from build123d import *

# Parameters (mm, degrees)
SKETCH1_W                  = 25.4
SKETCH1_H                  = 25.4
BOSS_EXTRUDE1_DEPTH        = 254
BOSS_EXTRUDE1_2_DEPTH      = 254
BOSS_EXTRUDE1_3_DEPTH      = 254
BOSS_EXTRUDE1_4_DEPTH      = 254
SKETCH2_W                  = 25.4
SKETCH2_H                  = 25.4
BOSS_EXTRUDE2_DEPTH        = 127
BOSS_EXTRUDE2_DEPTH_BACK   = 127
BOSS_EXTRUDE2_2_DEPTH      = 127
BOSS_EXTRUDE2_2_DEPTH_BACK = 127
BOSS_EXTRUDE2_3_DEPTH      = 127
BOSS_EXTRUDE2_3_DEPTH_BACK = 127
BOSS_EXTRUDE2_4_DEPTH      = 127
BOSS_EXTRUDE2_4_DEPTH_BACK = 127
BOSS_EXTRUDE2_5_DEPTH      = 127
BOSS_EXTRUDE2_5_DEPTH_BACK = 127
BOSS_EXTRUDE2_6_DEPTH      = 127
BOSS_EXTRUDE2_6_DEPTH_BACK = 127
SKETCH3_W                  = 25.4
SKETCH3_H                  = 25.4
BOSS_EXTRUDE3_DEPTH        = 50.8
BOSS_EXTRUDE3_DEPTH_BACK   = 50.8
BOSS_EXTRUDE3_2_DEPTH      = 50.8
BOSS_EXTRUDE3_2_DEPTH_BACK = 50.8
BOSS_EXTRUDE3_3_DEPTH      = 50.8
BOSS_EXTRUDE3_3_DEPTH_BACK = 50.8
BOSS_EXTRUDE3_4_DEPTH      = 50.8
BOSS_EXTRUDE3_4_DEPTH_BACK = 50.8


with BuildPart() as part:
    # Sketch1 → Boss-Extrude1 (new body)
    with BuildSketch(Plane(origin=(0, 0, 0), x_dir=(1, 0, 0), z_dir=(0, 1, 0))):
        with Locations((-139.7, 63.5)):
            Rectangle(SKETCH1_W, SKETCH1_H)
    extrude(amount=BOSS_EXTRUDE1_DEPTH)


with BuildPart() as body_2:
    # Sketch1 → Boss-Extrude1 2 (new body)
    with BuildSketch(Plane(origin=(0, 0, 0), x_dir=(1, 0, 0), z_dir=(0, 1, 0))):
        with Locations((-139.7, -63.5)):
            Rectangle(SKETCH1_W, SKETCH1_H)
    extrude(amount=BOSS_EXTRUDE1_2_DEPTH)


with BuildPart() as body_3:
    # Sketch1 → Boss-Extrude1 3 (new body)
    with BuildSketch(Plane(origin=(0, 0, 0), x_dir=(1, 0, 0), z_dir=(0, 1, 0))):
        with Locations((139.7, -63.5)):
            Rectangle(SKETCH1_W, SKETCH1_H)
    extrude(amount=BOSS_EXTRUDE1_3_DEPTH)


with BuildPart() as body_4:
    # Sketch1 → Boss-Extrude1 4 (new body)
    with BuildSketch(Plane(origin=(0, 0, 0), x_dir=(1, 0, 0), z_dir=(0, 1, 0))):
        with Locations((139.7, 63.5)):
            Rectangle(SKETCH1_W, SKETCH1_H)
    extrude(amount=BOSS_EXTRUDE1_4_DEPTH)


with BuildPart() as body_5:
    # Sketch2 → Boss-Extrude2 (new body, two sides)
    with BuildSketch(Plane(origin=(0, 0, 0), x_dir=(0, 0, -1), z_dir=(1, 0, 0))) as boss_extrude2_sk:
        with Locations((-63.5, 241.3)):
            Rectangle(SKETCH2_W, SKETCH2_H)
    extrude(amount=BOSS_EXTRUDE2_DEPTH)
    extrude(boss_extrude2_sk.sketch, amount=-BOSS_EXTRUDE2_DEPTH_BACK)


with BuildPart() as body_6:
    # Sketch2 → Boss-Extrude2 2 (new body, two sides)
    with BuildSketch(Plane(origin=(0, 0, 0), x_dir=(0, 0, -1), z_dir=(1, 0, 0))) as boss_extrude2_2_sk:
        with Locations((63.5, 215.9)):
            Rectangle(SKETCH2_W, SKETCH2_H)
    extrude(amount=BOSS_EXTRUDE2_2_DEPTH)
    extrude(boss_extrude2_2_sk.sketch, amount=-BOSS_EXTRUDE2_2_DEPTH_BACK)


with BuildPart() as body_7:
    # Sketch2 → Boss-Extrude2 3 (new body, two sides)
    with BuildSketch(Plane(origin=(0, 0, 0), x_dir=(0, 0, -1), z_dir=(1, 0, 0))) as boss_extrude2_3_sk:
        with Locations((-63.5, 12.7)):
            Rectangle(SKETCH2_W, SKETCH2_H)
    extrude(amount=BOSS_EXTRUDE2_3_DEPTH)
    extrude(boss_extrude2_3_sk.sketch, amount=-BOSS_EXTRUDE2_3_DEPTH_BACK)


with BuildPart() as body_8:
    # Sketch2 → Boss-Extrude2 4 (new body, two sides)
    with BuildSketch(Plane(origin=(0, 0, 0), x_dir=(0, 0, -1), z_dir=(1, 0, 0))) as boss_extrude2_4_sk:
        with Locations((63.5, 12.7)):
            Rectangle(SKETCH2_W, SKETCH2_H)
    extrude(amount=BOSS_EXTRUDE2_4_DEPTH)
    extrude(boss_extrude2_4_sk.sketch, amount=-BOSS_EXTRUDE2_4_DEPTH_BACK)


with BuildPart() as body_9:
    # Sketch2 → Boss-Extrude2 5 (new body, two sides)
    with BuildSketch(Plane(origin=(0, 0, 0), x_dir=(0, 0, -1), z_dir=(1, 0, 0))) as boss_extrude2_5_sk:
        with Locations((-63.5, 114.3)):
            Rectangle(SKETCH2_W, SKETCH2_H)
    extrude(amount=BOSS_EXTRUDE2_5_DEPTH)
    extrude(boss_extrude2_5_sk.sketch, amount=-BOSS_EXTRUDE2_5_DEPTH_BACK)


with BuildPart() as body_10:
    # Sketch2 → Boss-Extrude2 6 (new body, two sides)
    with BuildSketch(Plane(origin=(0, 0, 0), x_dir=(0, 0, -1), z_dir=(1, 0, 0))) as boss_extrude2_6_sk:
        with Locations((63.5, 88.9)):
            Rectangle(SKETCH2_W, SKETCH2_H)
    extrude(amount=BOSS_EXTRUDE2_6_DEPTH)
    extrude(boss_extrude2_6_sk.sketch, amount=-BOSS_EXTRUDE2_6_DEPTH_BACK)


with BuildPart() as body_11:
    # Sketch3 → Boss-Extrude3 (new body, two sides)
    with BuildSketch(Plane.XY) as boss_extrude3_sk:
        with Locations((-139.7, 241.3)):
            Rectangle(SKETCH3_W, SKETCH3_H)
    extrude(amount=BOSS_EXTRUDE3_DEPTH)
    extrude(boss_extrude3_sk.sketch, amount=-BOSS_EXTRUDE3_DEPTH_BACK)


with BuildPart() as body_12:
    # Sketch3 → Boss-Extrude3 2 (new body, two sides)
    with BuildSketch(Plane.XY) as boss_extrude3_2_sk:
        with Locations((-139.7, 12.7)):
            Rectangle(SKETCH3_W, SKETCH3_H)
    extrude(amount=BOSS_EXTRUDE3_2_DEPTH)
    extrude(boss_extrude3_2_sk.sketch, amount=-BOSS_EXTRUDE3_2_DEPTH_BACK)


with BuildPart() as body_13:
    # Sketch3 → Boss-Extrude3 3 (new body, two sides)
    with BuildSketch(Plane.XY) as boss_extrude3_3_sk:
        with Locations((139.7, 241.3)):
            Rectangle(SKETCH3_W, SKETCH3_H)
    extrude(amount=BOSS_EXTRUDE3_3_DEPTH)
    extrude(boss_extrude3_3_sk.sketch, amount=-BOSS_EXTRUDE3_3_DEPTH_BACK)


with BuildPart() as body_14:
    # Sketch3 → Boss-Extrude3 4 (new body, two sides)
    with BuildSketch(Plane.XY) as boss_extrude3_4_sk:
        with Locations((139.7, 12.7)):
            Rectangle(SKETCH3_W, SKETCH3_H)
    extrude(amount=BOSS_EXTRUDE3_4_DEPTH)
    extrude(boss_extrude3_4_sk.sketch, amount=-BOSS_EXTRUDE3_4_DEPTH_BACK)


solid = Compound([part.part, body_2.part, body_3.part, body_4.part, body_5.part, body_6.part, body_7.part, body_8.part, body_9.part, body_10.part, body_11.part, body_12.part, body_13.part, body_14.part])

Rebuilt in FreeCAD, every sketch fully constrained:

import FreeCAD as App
import Part
import Sketcher
Q = App.Units.Quantity


def add_polygon(sketch, points):
    """Adds a closed chain of lines whose ends are joined by coincident constraints."""
    first, n = sketch.GeometryCount, len(points)
    for a, b in zip(points, points[1:] + points[:1]):
        sketch.addGeometry(Part.LineSegment(App.Vector(*a, 0), App.Vector(*b, 0)), False)
    for i in range(n):
        sketch.addConstraint(Sketcher.Constraint("Coincident", first + i, 2, first + (i + 1) % n, 1))

doc = App.newDocument("Part")
body = doc.addObject("PartDesign::Body", "Body")

# Sketch on XZ plane
sketch1 = body.newObject("Sketcher::SketchObject", "Sketch")
sketch1.AttachmentSupport = (doc.getObject("XZ_Plane"), [""])
sketch1.MapMode = "FlatFace"
add_polygon(sketch1, [(-152, -76), (-152, -51), (-127, -51), (-127, -76)])  # lines 0-3
sketch1.addConstraint(Sketcher.Constraint("Vertical", 0))
sketch1.addConstraint(Sketcher.Constraint("Horizontal", 1))
sketch1.addConstraint(Sketcher.Constraint("Vertical", 2))
sketch1.addConstraint(Sketcher.Constraint("Horizontal", 3))
sketch1.addConstraint(Sketcher.Constraint("Equal", 3, 0))
sketch1.addConstraint(Sketcher.Constraint("DistanceX", 1, 1, 1, 2, Q("1 in")))
sketch1.addConstraint(Sketcher.Constraint("DistanceX", 0, 2, -1, 1, Q("6 in")))
sketch1.addConstraint(Sketcher.Constraint("DistanceY", 0, 2, -1, 1, Q("2 in")))
pad1 = body.newObject("PartDesign::Pad", "Pad")
pad1.Profile = sketch1
pad1.Length = Q("10 in")
pad1.Reversed = True
body2 = doc.addObject("PartDesign::Body", "Body001")

# Sketch on XZ plane
sketch2 = body2.newObject("Sketcher::SketchObject", "Sketch001")
sketch2.AttachmentSupport = (doc.getObject("XZ_Plane001"), [""])
sketch2.MapMode = "FlatFace"
add_polygon(sketch2, [(-152, 51), (-152, 76), (-127, 76), (-127, 51)])  # lines 0-3
sketch2.addConstraint(Sketcher.Constraint("Vertical", 0))
sketch2.addConstraint(Sketcher.Constraint("Horizontal", 1))
sketch2.addConstraint(Sketcher.Constraint("Vertical", 2))
sketch2.addConstraint(Sketcher.Constraint("Horizontal", 3))
sketch2.addConstraint(Sketcher.Constraint("Equal", 3, 0))
sketch2.addConstraint(Sketcher.Constraint("DistanceX", 1, 1, 1, 2, Q("1 in")))
sketch2.addConstraint(Sketcher.Constraint("DistanceX", 0, 2, -1, 1, Q("6 in")))
sketch2.addConstraint(Sketcher.Constraint("DistanceY", -1, 1, 0, 2, Q("3 in")))
pad2 = body2.newObject("PartDesign::Pad", "Pad001")
pad2.Profile = sketch2
pad2.Length = Q("10 in")
pad2.Reversed = True
body3 = doc.addObject("PartDesign::Body", "Body002")

# Sketch on XZ plane
sketch3 = body3.newObject("Sketcher::SketchObject", "Sketch002")
sketch3.AttachmentSupport = (doc.getObject("XZ_Plane002"), [""])
sketch3.MapMode = "FlatFace"
add_polygon(sketch3, [(127, 51), (127, 76), (152, 76), (152, 51)])  # lines 0-3
sketch3.addConstraint(Sketcher.Constraint("Vertical", 0))
sketch3.addConstraint(Sketcher.Constraint("Horizontal", 1))
sketch3.addConstraint(Sketcher.Constraint("Vertical", 2))
sketch3.addConstraint(Sketcher.Constraint("Horizontal", 3))
sketch3.addConstraint(Sketcher.Constraint("Equal", 3, 0))
sketch3.addConstraint(Sketcher.Constraint("DistanceX", 1, 1, 1, 2, Q("1 in")))
sketch3.addConstraint(Sketcher.Constraint("DistanceX", -1, 1, 0, 2, Q("5 in")))
sketch3.addConstraint(Sketcher.Constraint("DistanceY", -1, 1, 0, 2, Q("3 in")))
pad3 = body3.newObject("PartDesign::Pad", "Pad002")
pad3.Profile = sketch3
pad3.Length = Q("10 in")
pad3.Reversed = True
body4 = doc.addObject("PartDesign::Body", "Body003")

# Sketch on XZ plane
sketch4 = body4.newObject("Sketcher::SketchObject", "Sketch003")
sketch4.AttachmentSupport = (doc.getObject("XZ_Plane003"), [""])
sketch4.MapMode = "FlatFace"
add_polygon(sketch4, [(127, -76), (127, -51), (152, -51), (152, -76)])  # lines 0-3
sketch4.addConstraint(Sketcher.Constraint("Vertical", 0))
sketch4.addConstraint(Sketcher.Constraint("Horizontal", 1))
sketch4.addConstraint(Sketcher.Constraint("Vertical", 2))
sketch4.addConstraint(Sketcher.Constraint("Horizontal", 3))
sketch4.addConstraint(Sketcher.Constraint("Equal", 3, 0))
sketch4.addConstraint(Sketcher.Constraint("DistanceX", 1, 1, 1, 2, Q("1 in")))
sketch4.addConstraint(Sketcher.Constraint("DistanceX", -1, 1, 0, 2, Q("5 in")))
sketch4.addConstraint(Sketcher.Constraint("DistanceY", 0, 2, -1, 1, Q("2 in")))
pad4 = body4.newObject("PartDesign::Pad", "Pad003")
pad4.Profile = sketch4
pad4.Length = Q("10 in")
pad4.Reversed = True
body5 = doc.addObject("PartDesign::Body", "Body004")

# Sketch on YZ plane
sketch5 = body5.newObject("Sketcher::SketchObject", "Sketch004")
sketch5.AttachmentSupport = (doc.getObject("YZ_Plane004"), [""])
sketch5.MapMode = "FlatFace"
add_polygon(sketch5, [(254, 76), (229, 76), (229, 51), (254, 51)])  # lines 0-3
sketch5.addConstraint(Sketcher.Constraint("Horizontal", 0))
sketch5.addConstraint(Sketcher.Constraint("Vertical", 1))
sketch5.addConstraint(Sketcher.Constraint("Horizontal", 2))
sketch5.addConstraint(Sketcher.Constraint("Vertical", 3))
sketch5.addConstraint(Sketcher.Constraint("Equal", 2, 1))
sketch5.addConstraint(Sketcher.Constraint("DistanceX", 0, 2, 0, 1, Q("1 in")))
sketch5.addConstraint(Sketcher.Constraint("DistanceX", -1, 1, 0, 2, Q("9 in")))
sketch5.addConstraint(Sketcher.Constraint("DistanceY", -1, 1, 0, 2, Q("3 in")))
pad5 = body5.newObject("PartDesign::Pad", "Pad004")
pad5.Profile = sketch5
pad5.Type = "TwoLengths"
pad5.Length = Q("5 in")
pad5.Length2 = Q("5 in")
body6 = doc.addObject("PartDesign::Body", "Body005")

# Sketch on YZ plane
sketch6 = body6.newObject("Sketcher::SketchObject", "Sketch005")
sketch6.AttachmentSupport = (doc.getObject("YZ_Plane005"), [""])
sketch6.MapMode = "FlatFace"
add_polygon(sketch6, [(229, -51), (203, -51), (203, -76), (229, -76)])  # lines 0-3
sketch6.addConstraint(Sketcher.Constraint("Horizontal", 0))
sketch6.addConstraint(Sketcher.Constraint("Vertical", 1))
sketch6.addConstraint(Sketcher.Constraint("Horizontal", 2))
sketch6.addConstraint(Sketcher.Constraint("Vertical", 3))
sketch6.addConstraint(Sketcher.Constraint("Equal", 2, 1))
sketch6.addConstraint(Sketcher.Constraint("DistanceX", 0, 2, 0, 1, Q("1 in")))
sketch6.addConstraint(Sketcher.Constraint("DistanceX", -1, 1, 0, 2, Q("8 in")))
sketch6.addConstraint(Sketcher.Constraint("DistanceY", 0, 2, -1, 1, Q("2 in")))
pad6 = body6.newObject("PartDesign::Pad", "Pad005")
pad6.Profile = sketch6
pad6.Type = "TwoLengths"
pad6.Length = Q("5 in")
pad6.Length2 = Q("5 in")
body7 = doc.addObject("PartDesign::Body", "Body006")

# Sketch on YZ plane
sketch7 = body7.newObject("Sketcher::SketchObject", "Sketch006")
sketch7.AttachmentSupport = (doc.getObject("YZ_Plane006"), [""])
sketch7.MapMode = "FlatFace"
add_polygon(sketch7, [(25, 76), (0, 76), (0, 51), (25, 51)])  # lines 0-3
sketch7.addConstraint(Sketcher.Constraint("Horizontal", 0))
sketch7.addConstraint(Sketcher.Constraint("Vertical", 1))
sketch7.addConstraint(Sketcher.Constraint("Horizontal", 2))
sketch7.addConstraint(Sketcher.Constraint("Vertical", 3))
sketch7.addConstraint(Sketcher.Constraint("PointOnObject", 0, 2, -2))
sketch7.addConstraint(Sketcher.Constraint("Equal", 2, 1))
sketch7.addConstraint(Sketcher.Constraint("DistanceX", 0, 2, 0, 1, Q("1 in")))
sketch7.addConstraint(Sketcher.Constraint("DistanceY", -1, 1, 0, 2, Q("3 in")))
pad7 = body7.newObject("PartDesign::Pad", "Pad006")
pad7.Profile = sketch7
pad7.Type = "TwoLengths"
pad7.Length = Q("5 in")
pad7.Length2 = Q("5 in")
body8 = doc.addObject("PartDesign::Body", "Body007")

# Sketch on YZ plane
sketch8 = body8.newObject("Sketcher::SketchObject", "Sketch007")
sketch8.AttachmentSupport = (doc.getObject("YZ_Plane007"), [""])
sketch8.MapMode = "FlatFace"
add_polygon(sketch8, [(25, -51), (0, -51), (0, -76), (25, -76)])  # lines 0-3
sketch8.addConstraint(Sketcher.Constraint("Horizontal", 0))
sketch8.addConstraint(Sketcher.Constraint("Vertical", 1))
sketch8.addConstraint(Sketcher.Constraint("Horizontal", 2))
sketch8.addConstraint(Sketcher.Constraint("Vertical", 3))
sketch8.addConstraint(Sketcher.Constraint("PointOnObject", 0, 2, -2))
sketch8.addConstraint(Sketcher.Constraint("Equal", 2, 1))
sketch8.addConstraint(Sketcher.Constraint("DistanceX", 0, 2, 0, 1, Q("1 in")))
sketch8.addConstraint(Sketcher.Constraint("DistanceY", 0, 2, -1, 1, Q("2 in")))
pad8 = body8.newObject("PartDesign::Pad", "Pad007")
pad8.Profile = sketch8
pad8.Type = "TwoLengths"
pad8.Length = Q("5 in")
pad8.Length2 = Q("5 in")
body9 = doc.addObject("PartDesign::Body", "Body008")

# Sketch on YZ plane
sketch9 = body9.newObject("Sketcher::SketchObject", "Sketch008")
sketch9.AttachmentSupport = (doc.getObject("YZ_Plane008"), [""])
sketch9.MapMode = "FlatFace"
add_polygon(sketch9, [(127, 76), (102, 76), (102, 51), (127, 51)])  # lines 0-3
sketch9.addConstraint(Sketcher.Constraint("Horizontal", 0))
sketch9.addConstraint(Sketcher.Constraint("Vertical", 1))
sketch9.addConstraint(Sketcher.Constraint("Horizontal", 2))
sketch9.addConstraint(Sketcher.Constraint("Vertical", 3))
sketch9.addConstraint(Sketcher.Constraint("Equal", 2, 1))
sketch9.addConstraint(Sketcher.Constraint("DistanceX", 0, 2, 0, 1, Q("1 in")))
sketch9.addConstraint(Sketcher.Constraint("DistanceX", -1, 1, 0, 2, Q("4 in")))
sketch9.addConstraint(Sketcher.Constraint("DistanceY", -1, 1, 0, 2, Q("3 in")))
pad9 = body9.newObject("PartDesign::Pad", "Pad008")
pad9.Profile = sketch9
pad9.Type = "TwoLengths"
pad9.Length = Q("5 in")
pad9.Length2 = Q("5 in")
body10 = doc.addObject("PartDesign::Body", "Body009")

# Sketch on YZ plane
sketch10 = body10.newObject("Sketcher::SketchObject", "Sketch009")
sketch10.AttachmentSupport = (doc.getObject("YZ_Plane009"), [""])
sketch10.MapMode = "FlatFace"
add_polygon(sketch10, [(102, -51), (76, -51), (76, -76), (102, -76)])  # lines 0-3
sketch10.addConstraint(Sketcher.Constraint("Horizontal", 0))
sketch10.addConstraint(Sketcher.Constraint("Vertical", 1))
sketch10.addConstraint(Sketcher.Constraint("Horizontal", 2))
sketch10.addConstraint(Sketcher.Constraint("Vertical", 3))
sketch10.addConstraint(Sketcher.Constraint("Equal", 2, 1))
sketch10.addConstraint(Sketcher.Constraint("DistanceX", 0, 2, 0, 1, Q("1 in")))
sketch10.addConstraint(Sketcher.Constraint("DistanceX", -1, 1, 0, 2, Q("3 in")))
sketch10.addConstraint(Sketcher.Constraint("DistanceY", 0, 2, -1, 1, Q("2 in")))
pad10 = body10.newObject("PartDesign::Pad", "Pad009")
pad10.Profile = sketch10
pad10.Type = "TwoLengths"
pad10.Length = Q("5 in")
pad10.Length2 = Q("5 in")
body11 = doc.addObject("PartDesign::Body", "Body010")

# Sketch on XY plane
sketch11 = body11.newObject("Sketcher::SketchObject", "Sketch010")
sketch11.AttachmentSupport = (doc.getObject("XY_Plane010"), [""])
sketch11.MapMode = "FlatFace"
add_polygon(sketch11, [(-152, 254), (-152, 229), (-127, 229), (-127, 254)])  # lines 0-3
sketch11.addConstraint(Sketcher.Constraint("Vertical", 0))
sketch11.addConstraint(Sketcher.Constraint("Horizontal", 1))
sketch11.addConstraint(Sketcher.Constraint("Vertical", 2))
sketch11.addConstraint(Sketcher.Constraint("Horizontal", 3))
sketch11.addConstraint(Sketcher.Constraint("Equal", 3, 0))
sketch11.addConstraint(Sketcher.Constraint("DistanceX", 1, 1, 1, 2, Q("1 in")))
sketch11.addConstraint(Sketcher.Constraint("DistanceX", 0, 2, -1, 1, Q("6 in")))
sketch11.addConstraint(Sketcher.Constraint("DistanceY", -1, 1, 0, 2, Q("9 in")))
pad11 = body11.newObject("PartDesign::Pad", "Pad010")
pad11.Profile = sketch11
pad11.Type = "TwoLengths"
pad11.Length = Q("2 in")
pad11.Length2 = Q("2 in")
body12 = doc.addObject("PartDesign::Body", "Body011")

# Sketch on XY plane
sketch12 = body12.newObject("Sketcher::SketchObject", "Sketch011")
sketch12.AttachmentSupport = (doc.getObject("XY_Plane011"), [""])
sketch12.MapMode = "FlatFace"
add_polygon(sketch12, [(-152, 25), (-152, 0), (-127, 0), (-127, 25)])  # lines 0-3
sketch12.addConstraint(Sketcher.Constraint("Vertical", 0))
sketch12.addConstraint(Sketcher.Constraint("Horizontal", 1))
sketch12.addConstraint(Sketcher.Constraint("Vertical", 2))
sketch12.addConstraint(Sketcher.Constraint("Horizontal", 3))
sketch12.addConstraint(Sketcher.Constraint("PointOnObject", 0, 2, -1))
sketch12.addConstraint(Sketcher.Constraint("Equal", 3, 0))
sketch12.addConstraint(Sketcher.Constraint("DistanceX", 1, 1, 1, 2, Q("1 in")))
sketch12.addConstraint(Sketcher.Constraint("DistanceX", 0, 2, -1, 1, Q("6 in")))
pad12 = body12.newObject("PartDesign::Pad", "Pad011")
pad12.Profile = sketch12
pad12.Type = "TwoLengths"
pad12.Length = Q("2 in")
pad12.Length2 = Q("2 in")
body13 = doc.addObject("PartDesign::Body", "Body012")

# Sketch on XY plane
sketch13 = body13.newObject("Sketcher::SketchObject", "Sketch012")
sketch13.AttachmentSupport = (doc.getObject("XY_Plane012"), [""])
sketch13.MapMode = "FlatFace"
add_polygon(sketch13, [(127, 254), (127, 229), (152, 229), (152, 254)])  # lines 0-3
sketch13.addConstraint(Sketcher.Constraint("Vertical", 0))
sketch13.addConstraint(Sketcher.Constraint("Horizontal", 1))
sketch13.addConstraint(Sketcher.Constraint("Vertical", 2))
sketch13.addConstraint(Sketcher.Constraint("Horizontal", 3))
sketch13.addConstraint(Sketcher.Constraint("Equal", 3, 0))
sketch13.addConstraint(Sketcher.Constraint("DistanceX", 1, 1, 1, 2, Q("1 in")))
sketch13.addConstraint(Sketcher.Constraint("DistanceX", -1, 1, 0, 2, Q("5 in")))
sketch13.addConstraint(Sketcher.Constraint("DistanceY", -1, 1, 0, 2, Q("9 in")))
pad13 = body13.newObject("PartDesign::Pad", "Pad012")
pad13.Profile = sketch13
pad13.Type = "TwoLengths"
pad13.Length = Q("2 in")
pad13.Length2 = Q("2 in")
body14 = doc.addObject("PartDesign::Body", "Body013")

# Sketch on XY plane
sketch14 = body14.newObject("Sketcher::SketchObject", "Sketch013")
sketch14.AttachmentSupport = (doc.getObject("XY_Plane013"), [""])
sketch14.MapMode = "FlatFace"
add_polygon(sketch14, [(127, 25), (127, 0), (152, 0), (152, 25)])  # lines 0-3
sketch14.addConstraint(Sketcher.Constraint("Vertical", 0))
sketch14.addConstraint(Sketcher.Constraint("Horizontal", 1))
sketch14.addConstraint(Sketcher.Constraint("Vertical", 2))
sketch14.addConstraint(Sketcher.Constraint("Horizontal", 3))
sketch14.addConstraint(Sketcher.Constraint("PointOnObject", 0, 2, -1))
sketch14.addConstraint(Sketcher.Constraint("Equal", 3, 0))
sketch14.addConstraint(Sketcher.Constraint("DistanceX", 1, 1, 1, 2, Q("1 in")))
sketch14.addConstraint(Sketcher.Constraint("DistanceX", -1, 1, 0, 2, Q("5 in")))
pad14 = body14.newObject("PartDesign::Pad", "Pad013")
pad14.Profile = sketch14
pad14.Type = "TwoLengths"
pad14.Length = Q("2 in")
pad14.Length2 = Q("2 in")

doc.recompute()
